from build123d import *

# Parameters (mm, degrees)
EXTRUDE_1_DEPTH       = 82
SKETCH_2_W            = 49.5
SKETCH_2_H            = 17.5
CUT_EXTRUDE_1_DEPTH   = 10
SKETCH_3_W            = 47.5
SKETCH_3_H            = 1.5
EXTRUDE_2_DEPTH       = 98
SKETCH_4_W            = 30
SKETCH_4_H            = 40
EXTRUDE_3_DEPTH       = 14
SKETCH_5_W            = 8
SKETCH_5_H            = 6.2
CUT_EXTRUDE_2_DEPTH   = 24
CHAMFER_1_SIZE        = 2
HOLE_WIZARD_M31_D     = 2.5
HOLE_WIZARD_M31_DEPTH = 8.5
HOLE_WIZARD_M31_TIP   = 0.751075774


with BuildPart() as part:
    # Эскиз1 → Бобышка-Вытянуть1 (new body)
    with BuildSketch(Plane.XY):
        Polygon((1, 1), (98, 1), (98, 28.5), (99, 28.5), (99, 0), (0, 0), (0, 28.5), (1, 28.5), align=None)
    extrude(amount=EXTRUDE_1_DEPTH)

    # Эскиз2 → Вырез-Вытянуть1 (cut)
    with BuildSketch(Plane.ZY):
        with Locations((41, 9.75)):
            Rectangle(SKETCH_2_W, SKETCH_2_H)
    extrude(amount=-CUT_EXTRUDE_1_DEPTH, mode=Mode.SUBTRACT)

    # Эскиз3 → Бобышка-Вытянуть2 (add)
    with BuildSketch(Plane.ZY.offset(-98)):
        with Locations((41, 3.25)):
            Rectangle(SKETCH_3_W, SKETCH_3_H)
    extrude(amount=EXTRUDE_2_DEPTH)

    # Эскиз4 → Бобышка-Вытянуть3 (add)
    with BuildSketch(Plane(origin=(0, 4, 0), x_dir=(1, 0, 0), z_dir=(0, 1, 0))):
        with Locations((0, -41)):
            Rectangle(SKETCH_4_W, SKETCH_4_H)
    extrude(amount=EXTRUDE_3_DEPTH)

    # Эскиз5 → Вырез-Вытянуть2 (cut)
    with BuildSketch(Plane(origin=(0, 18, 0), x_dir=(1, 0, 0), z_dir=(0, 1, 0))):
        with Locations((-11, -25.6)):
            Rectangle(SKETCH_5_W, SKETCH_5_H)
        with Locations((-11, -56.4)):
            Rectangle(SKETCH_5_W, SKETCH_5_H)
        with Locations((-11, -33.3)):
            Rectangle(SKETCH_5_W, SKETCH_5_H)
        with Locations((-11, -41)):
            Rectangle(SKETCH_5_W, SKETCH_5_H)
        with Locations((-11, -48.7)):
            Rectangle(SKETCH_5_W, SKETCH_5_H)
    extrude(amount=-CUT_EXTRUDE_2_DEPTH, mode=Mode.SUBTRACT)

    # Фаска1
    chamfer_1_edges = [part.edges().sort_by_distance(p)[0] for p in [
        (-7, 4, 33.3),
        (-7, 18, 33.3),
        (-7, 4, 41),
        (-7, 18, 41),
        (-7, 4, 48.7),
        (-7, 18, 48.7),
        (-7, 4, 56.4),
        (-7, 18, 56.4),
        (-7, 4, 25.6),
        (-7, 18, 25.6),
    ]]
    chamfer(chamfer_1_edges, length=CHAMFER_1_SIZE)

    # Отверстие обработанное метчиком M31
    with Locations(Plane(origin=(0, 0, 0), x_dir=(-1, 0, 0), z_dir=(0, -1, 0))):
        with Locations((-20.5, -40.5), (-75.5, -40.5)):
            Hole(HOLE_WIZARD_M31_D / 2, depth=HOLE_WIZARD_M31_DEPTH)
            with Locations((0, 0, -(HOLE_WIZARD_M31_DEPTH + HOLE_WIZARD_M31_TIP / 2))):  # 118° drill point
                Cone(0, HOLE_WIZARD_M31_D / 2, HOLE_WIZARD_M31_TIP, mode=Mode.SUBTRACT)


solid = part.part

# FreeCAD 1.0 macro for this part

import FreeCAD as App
import Part
import Sketcher
from FreeCAD import Vector


def edges_at(feature, points):
    """Names of the edges that pass closest to the given points."""
    edges = feature.Shape.Edges
    near = lambda p: min(range(len(edges)), key=lambda i: edges[i].distToShape(Part.Vertex(*p))[0])
    return sorted({f"Edge{near(p) + 1}" for p in points})


def add_polygon(sketch, points):
    """Adds a closed chain of lines whose ends are joined by coincident constraints."""
    first, n = sketch.GeometryCount, len(points)
    for a, b in zip(points, points[1:] + points[:1]):
        sketch.addGeometry(Part.LineSegment(App.Vector(*a, 0), App.Vector(*b, 0)), False)
    for i in range(n):
        sketch.addConstraint(Sketcher.Constraint("Coincident", first + i, 2, first + (i + 1) % n, 1))

doc = App.newDocument("Part")
body = doc.addObject("PartDesign::Body", "Body")

sketch1 = body.newObject("Sketcher::SketchObject", "Sketch")
sketch1.AttachmentSupport = (doc.getObject("XY_Plane"), [""])
sketch1.MapMode = "FlatFace"
add_polygon(sketch1, [(98, 1), (1, 1), (1, 28.5), (0, 28.5), (0, 0), (99, 0), (99, 28.5), (98, 28.5)])
sketch1.addConstraint(Sketcher.Constraint("Horizontal", 0))
sketch1.addConstraint(Sketcher.Constraint("Vertical", 1))
sketch1.addConstraint(Sketcher.Constraint("Horizontal", 2))
sketch1.addConstraint(Sketcher.Constraint("Vertical", 3))
sketch1.addConstraint(Sketcher.Constraint("Horizontal", 4))
sketch1.addConstraint(Sketcher.Constraint("Vertical", 5))
sketch1.addConstraint(Sketcher.Constraint("Horizontal", 6))
sketch1.addConstraint(Sketcher.Constraint("Vertical", 7))
sketch1.addConstraint(Sketcher.Constraint("Coincident", 3, 2, -1, 1))
sketch1.addConstraint(Sketcher.Constraint("Horizontal", 2, 2, 5, 2))
sketch1.addConstraint(Sketcher.Constraint("Equal", 2, 6))
sketch1.addConstraint(Sketcher.Constraint("DistanceX", 0, 2, 0, 1, 97.0))
sketch1.addConstraint(Sketcher.Constraint("DistanceX", 2, 2, 2, 1, 1.0))
sketch1.addConstraint(Sketcher.Constraint("DistanceY", 1, 1, 1, 2, 27.5))
sketch1.addConstraint(Sketcher.Constraint("DistanceY", 3, 2, 3, 1, 28.5))
pad1 = body.newObject("PartDesign::Pad", "Pad")
pad1.Profile = sketch1
pad1.Length = 82

sketch2 = body.newObject("Sketcher::SketchObject", "Sketch001")
sketch2.AttachmentSupport = (doc.getObject("YZ_Plane"), [""])
sketch2.MapMode = "FlatFace"
add_polygon(sketch2, [(18.5, 16.25), (1, 16.25), (1, 65.75), (18.5, 65.75)])
sketch2.addConstraint(Sketcher.Constraint("Horizontal", 0))
sketch2.addConstraint(Sketcher.Constraint("Vertical", 1))
sketch2.addConstraint(Sketcher.Constraint("Horizontal", 2))
sketch2.addConstraint(Sketcher.Constraint("Vertical", 3))
sketch2.addConstraint(Sketcher.Constraint("DistanceX", 0, 2, 0, 1, 17.5))
sketch2.addConstraint(Sketcher.Constraint("DistanceY", 1, 1, 1, 2, 49.5))
sketch2.addConstraint(Sketcher.Constraint("DistanceX", -1, 1, 0, 2, 1.0))
sketch2.addConstraint(Sketcher.Constraint("DistanceY", -1, 1, 0, 2, 16.25))
pocket1 = body.newObject("PartDesign::Pocket", "Pocket")
pocket1.Profile = sketch2
pocket1.Length = 10
pocket1.Reversed = True

sketch3 = body.newObject("Sketcher::SketchObject", "Sketch002")
sketch3.AttachmentSupport = (doc.getObject("YZ_Plane"), [""])
sketch3.MapMode = "FlatFace"
sketch3.AttachmentOffset = App.Placement(Vector(0, 0, 98), App.Rotation())
add_polygon(sketch3, [(4, 17.25), (2.5, 17.25), (2.5, 64.75), (4, 64.75)])
sketch3.addConstraint(Sketcher.Constraint("Horizontal", 0))
sketch3.addConstraint(Sketcher.Constraint("Vertical", 1))
sketch3.addConstraint(Sketcher.Constraint("Horizontal", 2))
sketch3.addConstraint(Sketcher.Constraint("Vertical", 3))
sketch3.addConstraint(Sketcher.Constraint("DistanceX", 0, 2, 0, 1, 1.5))
sketch3.addConstraint(Sketcher.Constraint("DistanceY", 1, 1, 1, 2, 47.5))
sketch3.addConstraint(Sketcher.Constraint("DistanceX", -1, 1, 2, 2, 4.0))
sketch3.addConstraint(Sketcher.Constraint("DistanceY", -1, 1, 0, 2, 17.25))
pad2 = body.newObject("PartDesign::Pad", "Pad001")
pad2.Profile = sketch3
pad2.Length = 98
pad2.Reversed = True

sketch4 = body.newObject("Sketcher::SketchObject", "Sketch003")
sketch4.AttachmentSupport = (doc.getObject("XZ_Plane"), [""])
sketch4.MapMode = "FlatFace"
sketch4.AttachmentOffset = App.Placement(Vector(0, 0, -4), App.Rotation())
add_polygon(sketch4, [(-15, 21), (-15, 61), (15, 61), (15, 21)])
sketch4.addConstraint(Sketcher.Constraint("Vertical", 0))
sketch4.addConstraint(Sketcher.Constraint("Horizontal", 1))
sketch4.addConstraint(Sketcher.Constraint("Vertical", 2))
sketch4.addConstraint(Sketcher.Constraint("Horizontal", 3))
sketch4.addConstraint(Sketcher.Constraint("DistanceX", 1, 1, 1, 2, 30.0))
sketch4.addConstraint(Sketcher.Constraint("DistanceY", 0, 1, 0, 2, 40.0))
sketch4.addConstraint(Sketcher.Constraint("DistanceX", 0, 2, -1, 1, 15.0))
sketch4.addConstraint(Sketcher.Constraint("DistanceY", -1, 1, 0, 2, 61.0))
pad3 = body.newObject("PartDesign::Pad", "Pad002")
pad3.Profile = sketch4
pad3.Length = 14
pad3.Reversed = True

sketch5 = body.newObject("Sketcher::SketchObject", "Sketch004")
sketch5.AttachmentSupport = (doc.getObject("XZ_Plane"), [""])
sketch5.MapMode = "FlatFace"
sketch5.AttachmentOffset = App.Placement(Vector(0, 0, -18), App.Rotation())
add_polygon(sketch5, [(-15, 22.5), (-15, 28.7), (-7, 28.7), (-7, 22.5)])
add_polygon(sketch5, [(-15, 53.3), (-15, 59.5), (-7, 59.5), (-7, 53.3)])
add_polygon(sketch5, [(-15, 30.2), (-15, 36.4), (-7, 36.4), (-7, 30.2)])
add_polygon(sketch5, [(-15, 37.9), (-15, 44.1), (-7, 44.1), (-7, 37.9)])
add_polygon(sketch5, [(-15, 45.6), (-15, 51.8), (-7, 51.8), (-7, 45.6)])
sketch5.addConstraint(Sketcher.Constraint("Vertical", 0))
sketch5.addConstraint(Sketcher.Constraint("Horizontal", 1))
sketch5.addConstraint(Sketcher.Constraint("Vertical", 2))
sketch5.addConstraint(Sketcher.Constraint("Horizontal", 3))
sketch5.addConstraint(Sketcher.Constraint("Vertical", 4))
sketch5.addConstraint(Sketcher.Constraint("Horizontal", 5))
sketch5.addConstraint(Sketcher.Constraint("Vertical", 6))
sketch5.addConstraint(Sketcher.Constraint("Horizontal", 7))
sketch5.addConstraint(Sketcher.Constraint("Vertical", 8))
sketch5.addConstraint(Sketcher.Constraint("Horizontal", 9))
sketch5.addConstraint(Sketcher.Constraint("Vertical", 10))
sketch5.addConstraint(Sketcher.Constraint("Horizontal", 11))
sketch5.addConstraint(Sketcher.Constraint("Vertical", 12))
sketch5.addConstraint(Sketcher.Constraint("Horizontal", 13))
sketch5.addConstraint(Sketcher.Constraint("Vertical", 14))
sketch5.addConstraint(Sketcher.Constraint("Horizontal", 15))
sketch5.addConstraint(Sketcher.Constraint("Vertical", 16))
sketch5.addConstraint(Sketcher.Constraint("Horizontal", 17))
sketch5.addConstraint(Sketcher.Constraint("Vertical", 18))
sketch5.addConstraint(Sketcher.Constraint("Horizontal", 19))
sketch5.addConstraint(Sketcher.Constraint("Vertical", 3, 2, 4, 2))
sketch5.addConstraint(Sketcher.Constraint("Vertical", 2, 2, 5, 2))
sketch5.addConstraint(Sketcher.Constraint("Vertical", 7, 2, 8, 2))
sketch5.addConstraint(Sketcher.Constraint("Vertical", 6, 2, 9, 2))
sketch5.addConstraint(Sketcher.Constraint("Vertical", 11, 2, 12, 2))
sketch5.addConstraint(Sketcher.Constraint("Vertical", 10, 2, 13, 2))
sketch5.addConstraint(Sketcher.Constraint("Vertical", 15, 2, 16, 2))
sketch5.addConstraint(Sketcher.Constraint("Vertical", 14, 2, 17, 2))
sketch5.addConstraint(Sketcher.Constraint("Equal", 2, 4))
sketch5.addConstraint(Sketcher.Constraint("Equal", 6, 8))
sketch5.addConstraint(Sketcher.Constraint("Equal", 10, 12))
sketch5.addConstraint(Sketcher.Constraint("Equal", 14, 16))
sketch5.addConstraint(Sketcher.Constraint("DistanceX", 1, 1, 1, 2, 8.0))
sketch5.addConstraint(Sketcher.Constraint("DistanceY", 0, 1, 0, 2, 6.2))
sketch5.addConstraint(Sketcher.Constraint("DistanceX", 0, 2, -1, 1, 15.0))
sketch5.addConstraint(Sketcher.Constraint("DistanceY", 3, 2, 4, 2, 37.0))
sketch5.addConstraint(Sketcher.Constraint("DistanceY", -1, 1, 0, 2, 28.7))
sketch5.addConstraint(Sketcher.Constraint("DistanceY", -1, 1, 8, 2, 36.4))
sketch5.addConstraint(Sketcher.Constraint("DistanceY", -1, 1, 12, 2, 44.1))
sketch5.addConstraint(Sketcher.Constraint("DistanceY", -1, 1, 16, 2, 51.8))
pocket2 = body.newObject("PartDesign::Pocket", "Pocket001")
pocket2.Profile = sketch5
pocket2.Length = 24
pocket2.Reversed = True
doc.recompute()

chamfer = body.newObject("PartDesign::Chamfer", "Chamfer")
chamfer.Base = (pocket2, edges_at(pocket2, [
    (-7, 4, 33.3),
    (-7, 18, 33.3),
    (-7, 4, 41),
    (-7, 18, 41),
    (-7, 4, 48.7),
    (-7, 18, 48.7),
    (-7, 4, 56.4),
    (-7, 18, 56.4),
    (-7, 4, 25.6),
    (-7, 18, 25.6),
]))
chamfer.Size = 2

sketch6 = body.newObject("Sketcher::SketchObject", "Sketch005")
sketch6.AttachmentSupport = (doc.getObject("XZ_Plane"), [""])
sketch6.MapMode = "FlatFace"
sketch6.addGeometry(Part.Circle(Vector(20.5, 40.5, 0), Vector(0, 0, 1), 1.25), False)
sketch6.addGeometry(Part.Circle(Vector(75.5, 40.5, 0), Vector(0, 0, 1), 1.25), False)
sketch6.addConstraint(Sketcher.Constraint("Equal", 0, 1))
sketch6.addConstraint(Sketcher.Constraint("Horizontal", 0, 3, 1, 3))
sketch6.addConstraint(Sketcher.Constraint("Diameter", 0, 2.5))
sketch6.addConstraint(Sketcher.Constraint("DistanceX", 0, 3, 1, 3, 55.0))
sketch6.addConstraint(Sketcher.Constraint("DistanceX", -1, 1, 0, 3, 20.5))
sketch6.addConstraint(Sketcher.Constraint("DistanceY", -1, 1, 0, 3, 40.5))
doc.recompute()
hole = body.newObject("PartDesign::Hole", "Hole")
hole.Profile = sketch6
hole.ThreadType = "None"
hole.Diameter = 2.5
hole.DepthType = "Dimension"
hole.Depth = 8.5
hole.DrillPoint = "Angled"
hole.DrillPointAngle = 118

doc.recompute()
